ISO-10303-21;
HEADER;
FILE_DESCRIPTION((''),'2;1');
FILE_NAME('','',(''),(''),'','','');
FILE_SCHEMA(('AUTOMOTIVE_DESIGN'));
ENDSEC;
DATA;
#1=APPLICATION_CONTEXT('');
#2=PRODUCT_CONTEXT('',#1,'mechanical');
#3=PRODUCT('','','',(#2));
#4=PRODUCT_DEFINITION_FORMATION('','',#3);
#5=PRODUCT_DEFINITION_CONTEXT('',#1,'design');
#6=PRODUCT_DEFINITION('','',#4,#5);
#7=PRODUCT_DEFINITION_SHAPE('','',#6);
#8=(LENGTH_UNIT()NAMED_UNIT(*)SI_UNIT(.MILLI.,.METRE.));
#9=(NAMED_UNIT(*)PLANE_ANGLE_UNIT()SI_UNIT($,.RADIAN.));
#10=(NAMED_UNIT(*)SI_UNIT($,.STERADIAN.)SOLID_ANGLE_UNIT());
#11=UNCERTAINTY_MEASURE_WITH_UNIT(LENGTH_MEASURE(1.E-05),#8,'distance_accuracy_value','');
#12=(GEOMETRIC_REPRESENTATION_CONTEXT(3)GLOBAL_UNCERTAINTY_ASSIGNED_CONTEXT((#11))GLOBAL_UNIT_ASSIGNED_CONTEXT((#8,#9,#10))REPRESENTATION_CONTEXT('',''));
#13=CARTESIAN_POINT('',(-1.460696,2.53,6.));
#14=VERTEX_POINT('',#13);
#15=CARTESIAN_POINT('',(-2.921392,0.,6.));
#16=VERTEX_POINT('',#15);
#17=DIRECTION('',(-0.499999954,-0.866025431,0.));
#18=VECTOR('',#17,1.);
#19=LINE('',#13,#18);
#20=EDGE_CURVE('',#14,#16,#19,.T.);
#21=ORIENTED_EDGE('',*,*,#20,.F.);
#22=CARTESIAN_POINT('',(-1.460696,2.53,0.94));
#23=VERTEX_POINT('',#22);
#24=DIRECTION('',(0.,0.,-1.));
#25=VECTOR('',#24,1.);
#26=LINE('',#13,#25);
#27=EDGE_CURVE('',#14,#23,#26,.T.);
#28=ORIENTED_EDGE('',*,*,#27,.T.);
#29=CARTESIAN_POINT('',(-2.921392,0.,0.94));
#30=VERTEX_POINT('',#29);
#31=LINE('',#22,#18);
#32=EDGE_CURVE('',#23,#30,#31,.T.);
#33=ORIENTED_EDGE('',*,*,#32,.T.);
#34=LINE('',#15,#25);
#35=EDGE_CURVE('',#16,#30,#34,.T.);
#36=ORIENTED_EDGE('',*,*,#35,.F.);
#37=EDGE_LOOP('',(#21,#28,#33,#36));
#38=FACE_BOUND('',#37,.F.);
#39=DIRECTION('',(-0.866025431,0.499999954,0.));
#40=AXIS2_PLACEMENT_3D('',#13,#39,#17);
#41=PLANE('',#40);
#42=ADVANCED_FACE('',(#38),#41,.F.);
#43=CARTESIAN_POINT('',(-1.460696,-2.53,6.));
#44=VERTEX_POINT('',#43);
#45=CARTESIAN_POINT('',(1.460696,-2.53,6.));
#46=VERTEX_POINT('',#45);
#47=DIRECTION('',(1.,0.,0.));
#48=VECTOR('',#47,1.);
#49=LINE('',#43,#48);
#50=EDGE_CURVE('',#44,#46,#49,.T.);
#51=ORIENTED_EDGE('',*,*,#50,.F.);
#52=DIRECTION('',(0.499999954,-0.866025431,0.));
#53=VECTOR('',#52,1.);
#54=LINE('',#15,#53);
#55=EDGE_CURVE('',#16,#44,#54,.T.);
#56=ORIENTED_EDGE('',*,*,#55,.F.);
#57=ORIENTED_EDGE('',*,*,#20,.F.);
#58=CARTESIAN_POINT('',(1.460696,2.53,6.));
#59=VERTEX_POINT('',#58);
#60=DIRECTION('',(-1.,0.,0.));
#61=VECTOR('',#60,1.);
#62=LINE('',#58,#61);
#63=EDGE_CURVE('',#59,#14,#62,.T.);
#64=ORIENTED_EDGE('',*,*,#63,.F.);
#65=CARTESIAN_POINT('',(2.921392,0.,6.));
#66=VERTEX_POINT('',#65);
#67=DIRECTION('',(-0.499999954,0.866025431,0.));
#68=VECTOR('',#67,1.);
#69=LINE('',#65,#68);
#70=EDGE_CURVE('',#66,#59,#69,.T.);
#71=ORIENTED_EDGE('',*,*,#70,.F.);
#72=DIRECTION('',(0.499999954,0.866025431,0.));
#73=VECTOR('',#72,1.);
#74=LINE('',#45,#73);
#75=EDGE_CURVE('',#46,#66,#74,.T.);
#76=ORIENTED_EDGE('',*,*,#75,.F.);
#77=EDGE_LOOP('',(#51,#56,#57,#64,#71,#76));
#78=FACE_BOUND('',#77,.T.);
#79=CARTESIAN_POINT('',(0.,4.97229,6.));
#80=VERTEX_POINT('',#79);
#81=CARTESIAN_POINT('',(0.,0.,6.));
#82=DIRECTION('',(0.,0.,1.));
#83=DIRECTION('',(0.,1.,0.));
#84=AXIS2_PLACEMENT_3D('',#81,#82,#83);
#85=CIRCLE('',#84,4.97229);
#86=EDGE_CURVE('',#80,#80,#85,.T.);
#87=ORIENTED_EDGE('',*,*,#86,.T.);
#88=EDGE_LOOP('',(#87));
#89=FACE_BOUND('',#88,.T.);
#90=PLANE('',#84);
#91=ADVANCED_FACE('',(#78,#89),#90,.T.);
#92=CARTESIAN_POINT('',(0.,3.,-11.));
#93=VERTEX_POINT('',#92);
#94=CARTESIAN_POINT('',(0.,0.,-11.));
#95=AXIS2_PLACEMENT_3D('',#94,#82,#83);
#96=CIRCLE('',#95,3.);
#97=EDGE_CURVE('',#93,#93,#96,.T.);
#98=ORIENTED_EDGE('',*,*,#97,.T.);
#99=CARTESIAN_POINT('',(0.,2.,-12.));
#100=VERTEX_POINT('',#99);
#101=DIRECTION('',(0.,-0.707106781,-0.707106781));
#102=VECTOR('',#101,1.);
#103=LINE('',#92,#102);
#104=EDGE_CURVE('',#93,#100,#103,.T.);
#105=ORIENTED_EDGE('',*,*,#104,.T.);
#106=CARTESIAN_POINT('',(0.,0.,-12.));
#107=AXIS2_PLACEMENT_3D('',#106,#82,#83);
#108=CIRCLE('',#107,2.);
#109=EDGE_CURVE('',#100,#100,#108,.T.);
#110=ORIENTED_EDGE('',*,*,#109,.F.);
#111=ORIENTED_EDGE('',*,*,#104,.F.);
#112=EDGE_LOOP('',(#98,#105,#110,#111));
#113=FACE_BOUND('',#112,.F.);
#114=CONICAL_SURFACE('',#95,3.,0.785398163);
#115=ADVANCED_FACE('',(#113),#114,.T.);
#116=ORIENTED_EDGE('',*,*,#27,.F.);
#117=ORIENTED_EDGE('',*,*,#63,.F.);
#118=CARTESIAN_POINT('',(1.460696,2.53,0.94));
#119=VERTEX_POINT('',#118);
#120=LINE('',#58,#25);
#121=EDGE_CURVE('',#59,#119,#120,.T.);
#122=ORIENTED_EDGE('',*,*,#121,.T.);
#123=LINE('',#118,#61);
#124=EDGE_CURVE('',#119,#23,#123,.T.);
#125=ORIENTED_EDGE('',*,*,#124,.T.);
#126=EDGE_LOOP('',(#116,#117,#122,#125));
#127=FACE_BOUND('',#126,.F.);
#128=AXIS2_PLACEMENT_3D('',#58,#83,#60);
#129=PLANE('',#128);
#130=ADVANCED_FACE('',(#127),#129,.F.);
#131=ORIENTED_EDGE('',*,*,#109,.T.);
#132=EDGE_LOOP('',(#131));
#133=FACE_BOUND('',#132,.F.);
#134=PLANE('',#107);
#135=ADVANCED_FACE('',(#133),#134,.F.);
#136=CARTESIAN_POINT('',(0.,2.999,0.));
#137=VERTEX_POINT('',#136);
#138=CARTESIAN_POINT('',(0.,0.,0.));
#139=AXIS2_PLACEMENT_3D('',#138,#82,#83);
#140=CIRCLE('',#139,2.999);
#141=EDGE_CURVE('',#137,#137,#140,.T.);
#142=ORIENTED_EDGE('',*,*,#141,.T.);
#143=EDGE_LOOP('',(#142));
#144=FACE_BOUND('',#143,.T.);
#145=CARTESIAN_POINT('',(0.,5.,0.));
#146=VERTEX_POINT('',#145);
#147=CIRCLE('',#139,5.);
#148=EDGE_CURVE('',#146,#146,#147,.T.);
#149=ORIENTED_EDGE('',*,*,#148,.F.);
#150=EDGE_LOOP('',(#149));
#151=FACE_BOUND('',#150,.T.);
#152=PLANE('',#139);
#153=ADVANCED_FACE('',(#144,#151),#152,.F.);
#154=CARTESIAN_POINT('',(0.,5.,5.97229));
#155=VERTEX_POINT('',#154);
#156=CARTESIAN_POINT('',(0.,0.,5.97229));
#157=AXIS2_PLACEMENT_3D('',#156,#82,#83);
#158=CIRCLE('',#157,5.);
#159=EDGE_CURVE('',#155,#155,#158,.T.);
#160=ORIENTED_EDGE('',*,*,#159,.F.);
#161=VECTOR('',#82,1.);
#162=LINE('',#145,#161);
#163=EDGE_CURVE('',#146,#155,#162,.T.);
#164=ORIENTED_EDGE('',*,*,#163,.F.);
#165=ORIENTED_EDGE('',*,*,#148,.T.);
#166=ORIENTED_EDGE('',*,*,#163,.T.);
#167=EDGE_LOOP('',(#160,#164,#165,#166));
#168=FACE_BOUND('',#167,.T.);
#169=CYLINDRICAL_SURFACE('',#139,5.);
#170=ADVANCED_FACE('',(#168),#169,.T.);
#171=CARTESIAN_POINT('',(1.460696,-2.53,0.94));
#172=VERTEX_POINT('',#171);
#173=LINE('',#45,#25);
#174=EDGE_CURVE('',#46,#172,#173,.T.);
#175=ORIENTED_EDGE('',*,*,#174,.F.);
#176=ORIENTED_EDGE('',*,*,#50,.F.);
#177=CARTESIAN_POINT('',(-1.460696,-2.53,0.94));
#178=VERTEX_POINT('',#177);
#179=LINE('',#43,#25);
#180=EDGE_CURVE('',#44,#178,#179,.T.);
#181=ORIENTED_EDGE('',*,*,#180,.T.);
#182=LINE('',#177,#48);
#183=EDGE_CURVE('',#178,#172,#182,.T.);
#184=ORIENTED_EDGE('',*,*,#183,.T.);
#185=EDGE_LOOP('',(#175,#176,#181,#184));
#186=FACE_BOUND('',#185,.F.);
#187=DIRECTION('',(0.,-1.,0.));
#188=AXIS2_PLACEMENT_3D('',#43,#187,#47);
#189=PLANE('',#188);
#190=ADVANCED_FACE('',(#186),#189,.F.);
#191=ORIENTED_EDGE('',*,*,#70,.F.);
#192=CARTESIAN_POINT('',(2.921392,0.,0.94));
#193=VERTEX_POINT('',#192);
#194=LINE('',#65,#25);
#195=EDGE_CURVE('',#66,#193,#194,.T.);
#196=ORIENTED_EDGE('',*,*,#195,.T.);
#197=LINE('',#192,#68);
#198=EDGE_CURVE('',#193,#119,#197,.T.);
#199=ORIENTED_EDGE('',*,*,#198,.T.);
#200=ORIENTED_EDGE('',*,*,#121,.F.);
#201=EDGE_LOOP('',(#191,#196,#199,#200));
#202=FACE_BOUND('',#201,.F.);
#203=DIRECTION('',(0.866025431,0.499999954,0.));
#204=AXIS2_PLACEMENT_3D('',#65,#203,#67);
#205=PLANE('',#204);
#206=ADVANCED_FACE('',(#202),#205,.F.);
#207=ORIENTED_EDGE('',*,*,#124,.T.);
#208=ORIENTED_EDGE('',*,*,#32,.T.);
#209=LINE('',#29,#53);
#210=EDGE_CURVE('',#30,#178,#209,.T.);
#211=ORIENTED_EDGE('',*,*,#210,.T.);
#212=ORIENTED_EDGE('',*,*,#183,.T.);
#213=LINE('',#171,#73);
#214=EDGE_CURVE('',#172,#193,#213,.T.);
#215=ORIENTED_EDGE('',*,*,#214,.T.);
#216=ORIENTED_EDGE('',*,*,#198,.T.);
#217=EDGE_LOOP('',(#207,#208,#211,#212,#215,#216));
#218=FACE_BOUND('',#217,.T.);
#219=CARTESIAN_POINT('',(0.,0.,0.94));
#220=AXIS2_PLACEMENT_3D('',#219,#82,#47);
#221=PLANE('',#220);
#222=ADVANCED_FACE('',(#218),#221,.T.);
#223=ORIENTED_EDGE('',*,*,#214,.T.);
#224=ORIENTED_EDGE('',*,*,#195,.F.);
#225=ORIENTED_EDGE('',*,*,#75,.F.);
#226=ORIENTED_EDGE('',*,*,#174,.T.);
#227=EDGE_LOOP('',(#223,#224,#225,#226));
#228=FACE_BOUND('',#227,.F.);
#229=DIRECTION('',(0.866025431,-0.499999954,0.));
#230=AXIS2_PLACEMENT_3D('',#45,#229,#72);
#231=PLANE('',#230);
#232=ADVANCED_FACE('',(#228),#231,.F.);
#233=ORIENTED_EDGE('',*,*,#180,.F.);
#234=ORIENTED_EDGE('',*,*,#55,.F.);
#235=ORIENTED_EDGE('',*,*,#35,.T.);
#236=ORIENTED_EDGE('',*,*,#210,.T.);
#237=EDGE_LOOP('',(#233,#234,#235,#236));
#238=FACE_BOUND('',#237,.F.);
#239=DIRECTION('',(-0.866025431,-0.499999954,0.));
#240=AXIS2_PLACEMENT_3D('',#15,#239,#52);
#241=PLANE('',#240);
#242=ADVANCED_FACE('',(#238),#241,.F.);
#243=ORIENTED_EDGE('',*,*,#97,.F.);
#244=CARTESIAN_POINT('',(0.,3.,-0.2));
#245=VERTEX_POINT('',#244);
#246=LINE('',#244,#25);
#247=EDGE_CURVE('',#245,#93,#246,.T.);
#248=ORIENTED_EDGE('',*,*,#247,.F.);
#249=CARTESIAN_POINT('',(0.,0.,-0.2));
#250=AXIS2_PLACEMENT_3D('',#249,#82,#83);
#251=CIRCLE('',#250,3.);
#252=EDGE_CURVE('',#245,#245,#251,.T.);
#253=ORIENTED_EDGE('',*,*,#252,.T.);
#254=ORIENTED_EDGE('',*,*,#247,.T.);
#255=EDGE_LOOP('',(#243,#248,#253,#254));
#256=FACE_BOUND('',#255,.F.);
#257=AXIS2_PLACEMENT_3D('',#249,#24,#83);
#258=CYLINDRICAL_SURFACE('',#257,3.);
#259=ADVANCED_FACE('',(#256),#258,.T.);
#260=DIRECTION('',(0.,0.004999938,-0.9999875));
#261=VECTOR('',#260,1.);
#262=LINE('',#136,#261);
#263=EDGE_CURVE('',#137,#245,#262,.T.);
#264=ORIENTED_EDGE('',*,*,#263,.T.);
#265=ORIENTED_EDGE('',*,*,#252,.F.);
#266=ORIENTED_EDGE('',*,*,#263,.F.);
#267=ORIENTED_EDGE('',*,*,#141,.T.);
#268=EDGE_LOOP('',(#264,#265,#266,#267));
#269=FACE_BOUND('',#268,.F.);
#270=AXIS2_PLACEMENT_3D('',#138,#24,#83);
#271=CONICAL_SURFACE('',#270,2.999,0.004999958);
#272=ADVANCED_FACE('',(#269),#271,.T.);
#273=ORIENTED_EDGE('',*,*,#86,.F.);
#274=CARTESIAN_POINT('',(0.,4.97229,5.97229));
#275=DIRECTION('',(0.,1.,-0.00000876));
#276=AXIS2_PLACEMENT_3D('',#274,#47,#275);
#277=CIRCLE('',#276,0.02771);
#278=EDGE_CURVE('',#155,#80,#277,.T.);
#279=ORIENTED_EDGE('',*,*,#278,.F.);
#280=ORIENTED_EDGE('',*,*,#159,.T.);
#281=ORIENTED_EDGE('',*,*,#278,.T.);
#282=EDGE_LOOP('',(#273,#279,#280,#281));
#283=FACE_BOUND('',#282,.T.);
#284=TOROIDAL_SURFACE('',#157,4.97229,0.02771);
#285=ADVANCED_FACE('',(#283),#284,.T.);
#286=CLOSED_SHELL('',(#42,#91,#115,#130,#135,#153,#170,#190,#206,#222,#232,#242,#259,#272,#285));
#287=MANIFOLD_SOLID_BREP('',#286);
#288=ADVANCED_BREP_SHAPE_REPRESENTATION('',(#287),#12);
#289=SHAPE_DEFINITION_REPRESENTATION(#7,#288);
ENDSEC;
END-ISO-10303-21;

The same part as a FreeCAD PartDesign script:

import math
import FreeCAD as App
import Part
import Sketcher
from FreeCAD import Vector
Q = App.Units.Quantity


def add_polygon(sketch, points):
    """Adds a closed chain of lines whose ends are joined by coincident constraints."""
    first, n = sketch.GeometryCount, len(points)
    for a, b in zip(points, points[1:] + points[:1]):
        sketch.addGeometry(Part.LineSegment(App.Vector(*a, 0), App.Vector(*b, 0)), False)
    for i in range(n):
        sketch.addConstraint(Sketcher.Constraint("Coincident", first + i, 2, first + (i + 1) % n, 1))

doc = App.newDocument("Part")
params = doc.addObject("Spreadsheet::Sheet", "Params")
for row, (alias, value) in enumerate([
    ("sketch1_width", "2 mm"),
    ("sketch1_height", "18 mm"),
    ("sketch1_height2", "10.8 mm"),
    ("revolution_angle", "360 deg"),
    ("pocket1_length", "5.06 mm"),
], start=1):
    params.set(f"A{row}", alias)
    params.set(f"B{row}", "=" + value)
    params.setAlias(f"B{row}", alias)

body = doc.addObject("PartDesign::Body", "Body")

# Sketch on YZ plane
sketch1 = body.newObject("Sketcher::SketchObject", "Sketch")
sketch1.AttachmentSupport = (doc.getObject("YZ_Plane"), [""])
sketch1.MapMode = "FlatFace"
sketch1.addGeometry(Part.LineSegment(Vector(2.999, 0, 0), Vector(5, 0, 0)), False)
sketch1.addGeometry(Part.LineSegment(Vector(5, 0, 0), Vector(5, 5.97229, 0)), False)
sketch1.addGeometry(Part.ArcOfCircle(Part.Circle(Vector(4.97229, 5.97229, 0), Vector(0, 0, 1), 0.02771), math.radians(-0.000502), math.radians(90.000502)), False)
sketch1.addGeometry(Part.LineSegment(Vector(4.97229, 6, 0), Vector(0, 6, 0)), False)
sketch1.addGeometry(Part.LineSegment(Vector(0, 6, 0), Vector(0, -12, 0)), False)
sketch1.addGeometry(Part.LineSegment(Vector(0, -12, 0), Vector(2, -12, 0)), False)
sketch1.addGeometry(Part.LineSegment(Vector(2, -12, 0), Vector(3, -11, 0)), False)
sketch1.addGeometry(Part.LineSegment(Vector(3, -11, 0), Vector(3, -0.2, 0)), False)
sketch1.addGeometry(Part.LineSegment(Vector(3, -0.2, 0), Vector(2.999, 0, 0)), False)
sketch1.addConstraint(Sketcher.Constraint("Coincident", 0, 2, 1, 1))
sketch1.addConstraint(Sketcher.Constraint("Coincident", 1, 2, 2, 1))
sketch1.addConstraint(Sketcher.Constraint("Coincident", 2, 2, 3, 1))
sketch1.addConstraint(Sketcher.Constraint("Coincident", 3, 2, 4, 1))
sketch1.addConstraint(Sketcher.Constraint("Coincident", 4, 2, 5, 1))
sketch1.addConstraint(Sketcher.Constraint("Coincident", 5, 2, 6, 1))
sketch1.addConstraint(Sketcher.Constraint("Coincident", 6, 2, 7, 1))
sketch1.addConstraint(Sketcher.Constraint("Coincident", 7, 2, 8, 1))
sketch1.addConstraint(Sketcher.Constraint("Coincident", 8, 2, 0, 1))
sketch1.addConstraint(Sketcher.Constraint("Horizontal", 0))
sketch1.addConstraint(Sketcher.Constraint("Vertical", 1))
sketch1.addConstraint(Sketcher.Constraint("Horizontal", 3))
sketch1.addConstraint(Sketcher.Constraint("Vertical", 4))
sketch1.addConstraint(Sketcher.Constraint("Horizontal", 5))
sketch1.addConstraint(Sketcher.Constraint("Vertical", 7))
sketch1.addConstraint(Sketcher.Constraint("PointOnObject", 0, 2, -1))
sketch1.addConstraint(Sketcher.Constraint("PointOnObject", 3, 2, -2))
sketch1.addConstraint(Sketcher.Constraint("Horizontal", 2, 3, 1, 2))
sketch1.addConstraint(Sketcher.Constraint("DistanceX", 5, 1, 5, 2, Q("2 mm")))
sketch1.addConstraint(Sketcher.Constraint("DistanceY", 4, 2, 4, 1, Q("18 mm")))
sketch1.addConstraint(Sketcher.Constraint("Angle", 6, Q("45 deg")))
sketch1.addConstraint(Sketcher.Constraint("DistanceY", 7, 1, 7, 2, Q("10.8 mm")))
sketch1.addConstraint(Sketcher.Constraint("DistanceX", -1, 1, 0, 2, Q("5 mm")))
sketch1.addConstraint(Sketcher.Constraint("DistanceY", -1, 1, 2, 2, Q("6 mm")))
sketch1.addConstraint(Sketcher.Constraint("DistanceX", -1, 1, 6, 2, Q("3 mm")))
sketch1.addConstraint(Sketcher.Constraint("DistanceX", 0, 1, 0, 2, Q("2.001 mm")))
sketch1.addConstraint(Sketcher.Constraint("Radius", 2, Q("0.02771 mm")))
sketch1.addConstraint(Sketcher.Constraint("DistanceX", 3, 2, 3, 1, Q("4.97229 mm")))
sketch1.setExpression("Constraints[18]", "Params.sketch1_width")
sketch1.setExpression("Constraints[19]", "Params.sketch1_height")
sketch1.setExpression("Constraints[21]", "Params.sketch1_height2")
revolution = body.newObject("PartDesign::Revolution", "Revolution")
revolution.Profile = sketch1
revolution.ReferenceAxis = (sketch1, ["V_Axis"])
revolution.setExpression("Angle", "Params.revolution_angle")

# Sketch on XY plane
sketch2 = body.newObject("Sketcher::SketchObject", "Sketch001")
sketch2.AttachmentSupport = (doc.getObject("XY_Plane"), [""])
sketch2.MapMode = "FlatFace"
sketch2.AttachmentOffset = App.Placement(Vector(0, 0, 6), App.Rotation())
add_polygon(sketch2, [(2.921392, 0), (1.460696, 2.53), (-1.460696, 2.53), (-2.921392, 0), (-1.460696, -2.53), (1.460696, -2.53)])  # lines 0-5
sketch2.addConstraint(Sketcher.Constraint("Horizontal", 1))
sketch2.addConstraint(Sketcher.Constraint("Horizontal", 4))
sketch2.addConstraint(Sketcher.Constraint("Symmetric", 0, 2, 3, 2, -1, 1))
sketch2.addConstraint(Sketcher.Constraint("Symmetric", 2, 2, 5, 2, -1, 1))
sketch2.addConstraint(Sketcher.Constraint("PointOnObject", 2, 2, -1))
sketch2.addConstraint(Sketcher.Constraint("Parallel", 2, 5))
sketch2.addConstraint(Sketcher.Constraint("Vertical", 1, 2, 3, 2))
sketch2.addConstraint(Sketcher.Constraint("Angle", 0, Q("119.999997 deg")))
sketch2.addConstraint(Sketcher.Constraint("DistanceY", -1, 1, 0, 2, Q("2.53 mm")))
sketch2.addConstraint(Sketcher.Constraint("DistanceX", 1, 2, 1, 1, Q("2.921392 mm")))
pocket1 = body.newObject("PartDesign::Pocket", "Pocket")
pocket1.Profile = sketch2
pocket1.setExpression("Length", "Params.pocket1_length")

doc.recompute()
